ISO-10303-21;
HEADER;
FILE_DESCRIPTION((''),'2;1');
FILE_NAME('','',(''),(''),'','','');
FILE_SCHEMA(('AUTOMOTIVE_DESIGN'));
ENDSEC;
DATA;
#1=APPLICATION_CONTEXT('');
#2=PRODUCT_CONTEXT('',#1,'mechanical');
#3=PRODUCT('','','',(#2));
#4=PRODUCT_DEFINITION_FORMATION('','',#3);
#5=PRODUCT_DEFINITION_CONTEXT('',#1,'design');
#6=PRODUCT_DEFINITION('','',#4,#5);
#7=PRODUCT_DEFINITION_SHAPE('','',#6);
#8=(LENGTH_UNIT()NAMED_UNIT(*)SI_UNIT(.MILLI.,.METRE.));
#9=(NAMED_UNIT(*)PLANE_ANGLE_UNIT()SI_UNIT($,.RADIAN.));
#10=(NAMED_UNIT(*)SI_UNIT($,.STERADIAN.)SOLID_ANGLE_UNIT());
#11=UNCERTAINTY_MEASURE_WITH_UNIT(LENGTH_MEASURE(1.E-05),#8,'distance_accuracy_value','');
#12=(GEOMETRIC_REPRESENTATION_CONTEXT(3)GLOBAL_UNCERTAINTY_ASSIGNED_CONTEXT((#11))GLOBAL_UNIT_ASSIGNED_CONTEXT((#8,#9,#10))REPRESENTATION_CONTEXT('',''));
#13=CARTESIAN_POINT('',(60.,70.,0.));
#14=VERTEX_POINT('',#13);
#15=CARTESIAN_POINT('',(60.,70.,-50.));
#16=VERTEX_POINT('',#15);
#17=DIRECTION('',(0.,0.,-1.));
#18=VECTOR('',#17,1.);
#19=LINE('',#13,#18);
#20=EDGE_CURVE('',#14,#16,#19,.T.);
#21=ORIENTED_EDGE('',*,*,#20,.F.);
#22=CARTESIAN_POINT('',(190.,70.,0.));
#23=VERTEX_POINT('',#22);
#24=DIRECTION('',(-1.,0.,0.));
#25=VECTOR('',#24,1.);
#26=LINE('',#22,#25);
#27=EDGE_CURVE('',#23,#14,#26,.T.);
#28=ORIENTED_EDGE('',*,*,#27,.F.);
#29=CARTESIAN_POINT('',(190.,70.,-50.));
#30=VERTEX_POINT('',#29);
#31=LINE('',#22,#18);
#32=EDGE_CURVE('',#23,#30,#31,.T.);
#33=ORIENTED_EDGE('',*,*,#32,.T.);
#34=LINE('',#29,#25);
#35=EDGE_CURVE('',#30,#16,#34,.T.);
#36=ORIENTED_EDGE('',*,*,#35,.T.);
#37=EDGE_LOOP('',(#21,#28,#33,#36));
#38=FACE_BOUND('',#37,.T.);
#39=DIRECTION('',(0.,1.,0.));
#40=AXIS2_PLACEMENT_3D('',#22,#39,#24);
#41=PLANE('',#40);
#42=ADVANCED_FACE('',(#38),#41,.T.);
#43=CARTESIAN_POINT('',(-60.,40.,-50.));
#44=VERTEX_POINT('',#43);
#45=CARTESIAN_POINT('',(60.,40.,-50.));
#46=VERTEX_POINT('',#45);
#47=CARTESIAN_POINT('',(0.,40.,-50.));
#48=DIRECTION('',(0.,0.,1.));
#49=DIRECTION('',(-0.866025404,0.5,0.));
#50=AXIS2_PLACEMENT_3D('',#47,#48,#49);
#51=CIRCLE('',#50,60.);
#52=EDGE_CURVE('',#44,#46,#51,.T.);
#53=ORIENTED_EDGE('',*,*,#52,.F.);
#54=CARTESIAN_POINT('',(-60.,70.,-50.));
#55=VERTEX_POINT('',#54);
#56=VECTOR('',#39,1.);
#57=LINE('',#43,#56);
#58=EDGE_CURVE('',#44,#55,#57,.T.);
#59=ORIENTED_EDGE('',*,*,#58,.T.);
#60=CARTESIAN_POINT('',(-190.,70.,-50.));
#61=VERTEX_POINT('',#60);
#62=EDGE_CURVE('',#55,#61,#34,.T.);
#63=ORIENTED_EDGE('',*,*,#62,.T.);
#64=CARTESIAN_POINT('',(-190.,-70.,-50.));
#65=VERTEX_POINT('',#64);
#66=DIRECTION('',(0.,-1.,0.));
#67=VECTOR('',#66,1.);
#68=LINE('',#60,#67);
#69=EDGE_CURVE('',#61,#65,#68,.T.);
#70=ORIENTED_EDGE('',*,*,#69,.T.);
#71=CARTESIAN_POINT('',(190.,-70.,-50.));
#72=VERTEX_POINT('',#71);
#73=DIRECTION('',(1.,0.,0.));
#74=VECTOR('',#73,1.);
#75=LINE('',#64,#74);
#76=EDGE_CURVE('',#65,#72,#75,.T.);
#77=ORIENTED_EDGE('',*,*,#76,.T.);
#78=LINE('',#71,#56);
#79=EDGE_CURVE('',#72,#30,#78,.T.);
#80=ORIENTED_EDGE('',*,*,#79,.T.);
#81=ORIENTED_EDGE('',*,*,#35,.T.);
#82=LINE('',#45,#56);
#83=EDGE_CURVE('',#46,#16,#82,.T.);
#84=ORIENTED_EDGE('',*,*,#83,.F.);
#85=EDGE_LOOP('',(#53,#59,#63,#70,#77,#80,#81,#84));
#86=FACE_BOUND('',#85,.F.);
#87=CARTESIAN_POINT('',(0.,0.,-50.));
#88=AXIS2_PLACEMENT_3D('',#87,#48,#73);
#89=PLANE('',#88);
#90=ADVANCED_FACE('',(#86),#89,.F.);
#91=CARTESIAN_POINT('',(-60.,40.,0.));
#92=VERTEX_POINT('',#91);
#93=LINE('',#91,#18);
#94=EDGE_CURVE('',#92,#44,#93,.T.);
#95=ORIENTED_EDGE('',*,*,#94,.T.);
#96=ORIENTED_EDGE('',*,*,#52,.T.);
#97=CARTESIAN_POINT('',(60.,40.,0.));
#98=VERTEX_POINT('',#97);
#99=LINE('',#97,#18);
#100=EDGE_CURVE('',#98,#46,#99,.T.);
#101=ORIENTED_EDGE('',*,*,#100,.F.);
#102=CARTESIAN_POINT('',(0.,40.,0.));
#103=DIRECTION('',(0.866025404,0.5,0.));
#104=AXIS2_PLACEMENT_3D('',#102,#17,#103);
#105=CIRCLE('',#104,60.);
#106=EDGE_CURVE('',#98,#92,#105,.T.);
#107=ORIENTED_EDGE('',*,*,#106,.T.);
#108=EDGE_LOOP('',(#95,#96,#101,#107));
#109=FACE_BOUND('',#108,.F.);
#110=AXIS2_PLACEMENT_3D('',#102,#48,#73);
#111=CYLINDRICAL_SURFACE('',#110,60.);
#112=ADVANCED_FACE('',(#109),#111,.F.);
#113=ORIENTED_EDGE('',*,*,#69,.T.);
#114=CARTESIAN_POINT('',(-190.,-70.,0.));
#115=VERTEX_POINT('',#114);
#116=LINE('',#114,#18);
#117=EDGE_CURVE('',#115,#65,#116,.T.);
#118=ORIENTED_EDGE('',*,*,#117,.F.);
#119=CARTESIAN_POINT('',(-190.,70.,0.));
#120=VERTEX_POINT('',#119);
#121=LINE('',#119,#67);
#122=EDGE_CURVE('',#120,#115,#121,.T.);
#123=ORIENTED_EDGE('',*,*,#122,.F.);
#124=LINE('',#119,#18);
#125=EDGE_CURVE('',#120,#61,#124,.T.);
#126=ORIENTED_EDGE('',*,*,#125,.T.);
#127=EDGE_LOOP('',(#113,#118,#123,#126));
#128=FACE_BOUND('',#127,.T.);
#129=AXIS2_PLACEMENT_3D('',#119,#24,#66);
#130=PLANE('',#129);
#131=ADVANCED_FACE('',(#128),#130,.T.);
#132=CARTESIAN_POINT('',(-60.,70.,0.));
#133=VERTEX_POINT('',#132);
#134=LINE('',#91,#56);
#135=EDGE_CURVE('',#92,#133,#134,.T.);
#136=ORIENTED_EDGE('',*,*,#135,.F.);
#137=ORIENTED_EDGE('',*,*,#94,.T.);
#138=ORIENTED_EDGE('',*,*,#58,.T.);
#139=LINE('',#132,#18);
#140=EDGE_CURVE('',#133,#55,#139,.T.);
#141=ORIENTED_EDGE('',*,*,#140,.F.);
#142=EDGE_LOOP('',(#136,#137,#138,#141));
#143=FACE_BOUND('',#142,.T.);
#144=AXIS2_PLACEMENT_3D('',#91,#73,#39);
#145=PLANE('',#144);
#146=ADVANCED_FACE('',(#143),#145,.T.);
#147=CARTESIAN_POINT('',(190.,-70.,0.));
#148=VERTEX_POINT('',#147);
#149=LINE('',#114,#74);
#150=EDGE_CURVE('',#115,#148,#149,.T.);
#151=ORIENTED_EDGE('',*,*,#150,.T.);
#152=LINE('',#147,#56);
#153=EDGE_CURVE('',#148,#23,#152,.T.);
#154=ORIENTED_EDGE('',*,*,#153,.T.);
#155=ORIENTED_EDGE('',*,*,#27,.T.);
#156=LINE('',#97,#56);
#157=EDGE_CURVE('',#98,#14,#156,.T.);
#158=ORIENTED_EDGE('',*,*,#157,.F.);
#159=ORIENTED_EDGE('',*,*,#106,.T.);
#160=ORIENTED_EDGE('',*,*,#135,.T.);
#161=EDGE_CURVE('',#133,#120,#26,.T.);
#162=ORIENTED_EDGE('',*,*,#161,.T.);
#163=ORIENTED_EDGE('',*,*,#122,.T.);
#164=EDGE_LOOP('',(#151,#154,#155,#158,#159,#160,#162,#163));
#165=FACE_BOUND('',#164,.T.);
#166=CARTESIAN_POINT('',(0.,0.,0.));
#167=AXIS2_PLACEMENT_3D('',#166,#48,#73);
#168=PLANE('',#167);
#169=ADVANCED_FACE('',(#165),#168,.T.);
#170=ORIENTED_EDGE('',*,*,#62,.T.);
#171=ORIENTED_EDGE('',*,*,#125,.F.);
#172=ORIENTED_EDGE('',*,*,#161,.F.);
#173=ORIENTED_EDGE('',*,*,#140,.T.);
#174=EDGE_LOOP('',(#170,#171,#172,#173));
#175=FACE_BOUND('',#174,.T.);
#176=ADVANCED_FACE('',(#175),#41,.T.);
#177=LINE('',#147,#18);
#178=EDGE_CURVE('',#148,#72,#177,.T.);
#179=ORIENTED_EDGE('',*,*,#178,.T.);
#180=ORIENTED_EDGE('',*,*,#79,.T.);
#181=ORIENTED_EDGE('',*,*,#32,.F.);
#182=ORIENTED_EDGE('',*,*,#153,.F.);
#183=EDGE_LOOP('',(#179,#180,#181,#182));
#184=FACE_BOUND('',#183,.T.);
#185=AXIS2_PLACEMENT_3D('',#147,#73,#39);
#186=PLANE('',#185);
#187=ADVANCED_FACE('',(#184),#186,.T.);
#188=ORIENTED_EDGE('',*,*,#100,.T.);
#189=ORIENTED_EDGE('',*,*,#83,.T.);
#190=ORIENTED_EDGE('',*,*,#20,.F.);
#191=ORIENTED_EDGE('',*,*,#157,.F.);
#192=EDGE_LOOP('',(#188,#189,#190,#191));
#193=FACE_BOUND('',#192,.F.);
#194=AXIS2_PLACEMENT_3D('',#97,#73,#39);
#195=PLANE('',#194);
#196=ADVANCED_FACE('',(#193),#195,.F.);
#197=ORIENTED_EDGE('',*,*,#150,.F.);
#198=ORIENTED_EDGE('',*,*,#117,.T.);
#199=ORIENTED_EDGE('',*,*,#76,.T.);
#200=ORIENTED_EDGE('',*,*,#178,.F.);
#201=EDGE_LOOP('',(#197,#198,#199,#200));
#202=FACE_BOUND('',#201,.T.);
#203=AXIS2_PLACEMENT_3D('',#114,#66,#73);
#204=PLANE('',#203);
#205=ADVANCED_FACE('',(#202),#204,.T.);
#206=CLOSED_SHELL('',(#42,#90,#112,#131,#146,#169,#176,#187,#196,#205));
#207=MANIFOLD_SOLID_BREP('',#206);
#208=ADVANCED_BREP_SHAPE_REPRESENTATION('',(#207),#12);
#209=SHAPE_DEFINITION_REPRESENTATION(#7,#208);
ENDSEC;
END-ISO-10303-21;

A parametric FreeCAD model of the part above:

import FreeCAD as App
import Part
import Sketcher

V = App.Vector
Q = App.Units.Quantity

doc = App.newDocument("Part")
body = doc.addObject("PartDesign::Body", "Body")

# Sketch on XY plane
sketch1 = body.newObject("Sketcher::SketchObject", "Sketch")
sketch1.AttachmentSupport = (doc.getObject("XY_Plane"), [""])
sketch1.MapMode = "FlatFace"
sketch1.addGeometry([
    Part.LineSegment(V(-190, 70, 0), V(-190, -70, 0)),
    Part.LineSegment(V(-190, -70, 0), V(190, -70, 0)),
    Part.LineSegment(V(190, -70, 0), V(190, 70, 0)),
    Part.LineSegment(V(190, 70, 0), V(-190, 70, 0)),
], False)
sketch1.addConstraint([
    Sketcher.Constraint("Coincident", 0, 2, 1, 1),
    Sketcher.Constraint("Coincident", 1, 2, 2, 1),
    Sketcher.Constraint("Coincident", 2, 2, 3, 1),
    Sketcher.Constraint("Coincident", 3, 2, 0, 1),
    Sketcher.Constraint("Vertical", 0),
    Sketcher.Constraint("Horizontal", 1),
    Sketcher.Constraint("Vertical", 2),
    Sketcher.Constraint("Horizontal", 3),
    Sketcher.Constraint("Symmetric", 0, 2, 2, 2, -1, 1),
    Sketcher.Constraint("DistanceX", 1, 1, 1, 2, Q("380 mm")),
    Sketcher.Constraint("DistanceY", 0, 2, 0, 1, Q("140 mm")),
])
pad1 = body.newObject("PartDesign::Pad", "Pad")
pad1.Profile = sketch1
pad1.Length = 50
pad1.Reversed = True

# Sketch on XY plane
sketch2 = body.newObject("Sketcher::SketchObject", "Sketch001")
sketch2.AttachmentSupport = (doc.getObject("XY_Plane"), [""])
sketch2.MapMode = "FlatFace"
sketch2.addGeometry(Part.Circle(V(0, 40, 0), V(0, 0, 1), 60), False)
sketch2.addConstraint([
    Sketcher.Constraint("PointOnObject", 0, 3, -2),
    Sketcher.Constraint("Diameter", 0, Q("120 mm")),
    Sketcher.Constraint("DistanceY", -1, 1, 0, 3, Q("40 mm")),
])
pocket1 = body.newObject("PartDesign::Pocket", "Pocket")
pocket1.Profile = sketch2
pocket1.Length = 50

# Sketch on XY plane
sketch3 = body.newObject("Sketcher::SketchObject", "Sketch002")
sketch3.AttachmentSupport = (doc.getObject("XY_Plane"), [""])
sketch3.MapMode = "FlatFace"
sketch3.addGeometry([
    Part.LineSegment(V(-60, 70, 0), V(-60, 40, 0)),
    Part.LineSegment(V(-60, 40, 0), V(60, 40, 0)),
    Part.LineSegment(V(60, 40, 0), V(60, 70, 0)),
    Part.LineSegment(V(60, 70, 0), V(-60, 70, 0)),
], False)
sketch3.addConstraint([
    Sketcher.Constraint("Coincident", 0, 2, 1, 1),
    Sketcher.Constraint("Coincident", 1, 2, 2, 1),
    Sketcher.Constraint("Coincident", 2, 2, 3, 1),
    Sketcher.Constraint("Coincident", 3, 2, 0, 1),
    Sketcher.Constraint("Vertical", 0),
    Sketcher.Constraint("Horizontal", 1),
    Sketcher.Constraint("Vertical", 2),
    Sketcher.Constraint("Horizontal", 3),
    Sketcher.Constraint("DistanceX", 1, 1, 1, 2, Q("120 mm")),
    Sketcher.Constraint("DistanceY", 0, 2, 0, 1, Q("30 mm")),
    Sketcher.Constraint("DistanceX", 0, 2, -1, 1, Q("60 mm")),
    Sketcher.Constraint("DistanceY", -1, 1, 0, 2, Q("40 mm")),
])
pocket2 = body.newObject("PartDesign::Pocket", "Pocket001")
pocket2.Profile = sketch3
pocket2.Length = 50

doc.recompute()
